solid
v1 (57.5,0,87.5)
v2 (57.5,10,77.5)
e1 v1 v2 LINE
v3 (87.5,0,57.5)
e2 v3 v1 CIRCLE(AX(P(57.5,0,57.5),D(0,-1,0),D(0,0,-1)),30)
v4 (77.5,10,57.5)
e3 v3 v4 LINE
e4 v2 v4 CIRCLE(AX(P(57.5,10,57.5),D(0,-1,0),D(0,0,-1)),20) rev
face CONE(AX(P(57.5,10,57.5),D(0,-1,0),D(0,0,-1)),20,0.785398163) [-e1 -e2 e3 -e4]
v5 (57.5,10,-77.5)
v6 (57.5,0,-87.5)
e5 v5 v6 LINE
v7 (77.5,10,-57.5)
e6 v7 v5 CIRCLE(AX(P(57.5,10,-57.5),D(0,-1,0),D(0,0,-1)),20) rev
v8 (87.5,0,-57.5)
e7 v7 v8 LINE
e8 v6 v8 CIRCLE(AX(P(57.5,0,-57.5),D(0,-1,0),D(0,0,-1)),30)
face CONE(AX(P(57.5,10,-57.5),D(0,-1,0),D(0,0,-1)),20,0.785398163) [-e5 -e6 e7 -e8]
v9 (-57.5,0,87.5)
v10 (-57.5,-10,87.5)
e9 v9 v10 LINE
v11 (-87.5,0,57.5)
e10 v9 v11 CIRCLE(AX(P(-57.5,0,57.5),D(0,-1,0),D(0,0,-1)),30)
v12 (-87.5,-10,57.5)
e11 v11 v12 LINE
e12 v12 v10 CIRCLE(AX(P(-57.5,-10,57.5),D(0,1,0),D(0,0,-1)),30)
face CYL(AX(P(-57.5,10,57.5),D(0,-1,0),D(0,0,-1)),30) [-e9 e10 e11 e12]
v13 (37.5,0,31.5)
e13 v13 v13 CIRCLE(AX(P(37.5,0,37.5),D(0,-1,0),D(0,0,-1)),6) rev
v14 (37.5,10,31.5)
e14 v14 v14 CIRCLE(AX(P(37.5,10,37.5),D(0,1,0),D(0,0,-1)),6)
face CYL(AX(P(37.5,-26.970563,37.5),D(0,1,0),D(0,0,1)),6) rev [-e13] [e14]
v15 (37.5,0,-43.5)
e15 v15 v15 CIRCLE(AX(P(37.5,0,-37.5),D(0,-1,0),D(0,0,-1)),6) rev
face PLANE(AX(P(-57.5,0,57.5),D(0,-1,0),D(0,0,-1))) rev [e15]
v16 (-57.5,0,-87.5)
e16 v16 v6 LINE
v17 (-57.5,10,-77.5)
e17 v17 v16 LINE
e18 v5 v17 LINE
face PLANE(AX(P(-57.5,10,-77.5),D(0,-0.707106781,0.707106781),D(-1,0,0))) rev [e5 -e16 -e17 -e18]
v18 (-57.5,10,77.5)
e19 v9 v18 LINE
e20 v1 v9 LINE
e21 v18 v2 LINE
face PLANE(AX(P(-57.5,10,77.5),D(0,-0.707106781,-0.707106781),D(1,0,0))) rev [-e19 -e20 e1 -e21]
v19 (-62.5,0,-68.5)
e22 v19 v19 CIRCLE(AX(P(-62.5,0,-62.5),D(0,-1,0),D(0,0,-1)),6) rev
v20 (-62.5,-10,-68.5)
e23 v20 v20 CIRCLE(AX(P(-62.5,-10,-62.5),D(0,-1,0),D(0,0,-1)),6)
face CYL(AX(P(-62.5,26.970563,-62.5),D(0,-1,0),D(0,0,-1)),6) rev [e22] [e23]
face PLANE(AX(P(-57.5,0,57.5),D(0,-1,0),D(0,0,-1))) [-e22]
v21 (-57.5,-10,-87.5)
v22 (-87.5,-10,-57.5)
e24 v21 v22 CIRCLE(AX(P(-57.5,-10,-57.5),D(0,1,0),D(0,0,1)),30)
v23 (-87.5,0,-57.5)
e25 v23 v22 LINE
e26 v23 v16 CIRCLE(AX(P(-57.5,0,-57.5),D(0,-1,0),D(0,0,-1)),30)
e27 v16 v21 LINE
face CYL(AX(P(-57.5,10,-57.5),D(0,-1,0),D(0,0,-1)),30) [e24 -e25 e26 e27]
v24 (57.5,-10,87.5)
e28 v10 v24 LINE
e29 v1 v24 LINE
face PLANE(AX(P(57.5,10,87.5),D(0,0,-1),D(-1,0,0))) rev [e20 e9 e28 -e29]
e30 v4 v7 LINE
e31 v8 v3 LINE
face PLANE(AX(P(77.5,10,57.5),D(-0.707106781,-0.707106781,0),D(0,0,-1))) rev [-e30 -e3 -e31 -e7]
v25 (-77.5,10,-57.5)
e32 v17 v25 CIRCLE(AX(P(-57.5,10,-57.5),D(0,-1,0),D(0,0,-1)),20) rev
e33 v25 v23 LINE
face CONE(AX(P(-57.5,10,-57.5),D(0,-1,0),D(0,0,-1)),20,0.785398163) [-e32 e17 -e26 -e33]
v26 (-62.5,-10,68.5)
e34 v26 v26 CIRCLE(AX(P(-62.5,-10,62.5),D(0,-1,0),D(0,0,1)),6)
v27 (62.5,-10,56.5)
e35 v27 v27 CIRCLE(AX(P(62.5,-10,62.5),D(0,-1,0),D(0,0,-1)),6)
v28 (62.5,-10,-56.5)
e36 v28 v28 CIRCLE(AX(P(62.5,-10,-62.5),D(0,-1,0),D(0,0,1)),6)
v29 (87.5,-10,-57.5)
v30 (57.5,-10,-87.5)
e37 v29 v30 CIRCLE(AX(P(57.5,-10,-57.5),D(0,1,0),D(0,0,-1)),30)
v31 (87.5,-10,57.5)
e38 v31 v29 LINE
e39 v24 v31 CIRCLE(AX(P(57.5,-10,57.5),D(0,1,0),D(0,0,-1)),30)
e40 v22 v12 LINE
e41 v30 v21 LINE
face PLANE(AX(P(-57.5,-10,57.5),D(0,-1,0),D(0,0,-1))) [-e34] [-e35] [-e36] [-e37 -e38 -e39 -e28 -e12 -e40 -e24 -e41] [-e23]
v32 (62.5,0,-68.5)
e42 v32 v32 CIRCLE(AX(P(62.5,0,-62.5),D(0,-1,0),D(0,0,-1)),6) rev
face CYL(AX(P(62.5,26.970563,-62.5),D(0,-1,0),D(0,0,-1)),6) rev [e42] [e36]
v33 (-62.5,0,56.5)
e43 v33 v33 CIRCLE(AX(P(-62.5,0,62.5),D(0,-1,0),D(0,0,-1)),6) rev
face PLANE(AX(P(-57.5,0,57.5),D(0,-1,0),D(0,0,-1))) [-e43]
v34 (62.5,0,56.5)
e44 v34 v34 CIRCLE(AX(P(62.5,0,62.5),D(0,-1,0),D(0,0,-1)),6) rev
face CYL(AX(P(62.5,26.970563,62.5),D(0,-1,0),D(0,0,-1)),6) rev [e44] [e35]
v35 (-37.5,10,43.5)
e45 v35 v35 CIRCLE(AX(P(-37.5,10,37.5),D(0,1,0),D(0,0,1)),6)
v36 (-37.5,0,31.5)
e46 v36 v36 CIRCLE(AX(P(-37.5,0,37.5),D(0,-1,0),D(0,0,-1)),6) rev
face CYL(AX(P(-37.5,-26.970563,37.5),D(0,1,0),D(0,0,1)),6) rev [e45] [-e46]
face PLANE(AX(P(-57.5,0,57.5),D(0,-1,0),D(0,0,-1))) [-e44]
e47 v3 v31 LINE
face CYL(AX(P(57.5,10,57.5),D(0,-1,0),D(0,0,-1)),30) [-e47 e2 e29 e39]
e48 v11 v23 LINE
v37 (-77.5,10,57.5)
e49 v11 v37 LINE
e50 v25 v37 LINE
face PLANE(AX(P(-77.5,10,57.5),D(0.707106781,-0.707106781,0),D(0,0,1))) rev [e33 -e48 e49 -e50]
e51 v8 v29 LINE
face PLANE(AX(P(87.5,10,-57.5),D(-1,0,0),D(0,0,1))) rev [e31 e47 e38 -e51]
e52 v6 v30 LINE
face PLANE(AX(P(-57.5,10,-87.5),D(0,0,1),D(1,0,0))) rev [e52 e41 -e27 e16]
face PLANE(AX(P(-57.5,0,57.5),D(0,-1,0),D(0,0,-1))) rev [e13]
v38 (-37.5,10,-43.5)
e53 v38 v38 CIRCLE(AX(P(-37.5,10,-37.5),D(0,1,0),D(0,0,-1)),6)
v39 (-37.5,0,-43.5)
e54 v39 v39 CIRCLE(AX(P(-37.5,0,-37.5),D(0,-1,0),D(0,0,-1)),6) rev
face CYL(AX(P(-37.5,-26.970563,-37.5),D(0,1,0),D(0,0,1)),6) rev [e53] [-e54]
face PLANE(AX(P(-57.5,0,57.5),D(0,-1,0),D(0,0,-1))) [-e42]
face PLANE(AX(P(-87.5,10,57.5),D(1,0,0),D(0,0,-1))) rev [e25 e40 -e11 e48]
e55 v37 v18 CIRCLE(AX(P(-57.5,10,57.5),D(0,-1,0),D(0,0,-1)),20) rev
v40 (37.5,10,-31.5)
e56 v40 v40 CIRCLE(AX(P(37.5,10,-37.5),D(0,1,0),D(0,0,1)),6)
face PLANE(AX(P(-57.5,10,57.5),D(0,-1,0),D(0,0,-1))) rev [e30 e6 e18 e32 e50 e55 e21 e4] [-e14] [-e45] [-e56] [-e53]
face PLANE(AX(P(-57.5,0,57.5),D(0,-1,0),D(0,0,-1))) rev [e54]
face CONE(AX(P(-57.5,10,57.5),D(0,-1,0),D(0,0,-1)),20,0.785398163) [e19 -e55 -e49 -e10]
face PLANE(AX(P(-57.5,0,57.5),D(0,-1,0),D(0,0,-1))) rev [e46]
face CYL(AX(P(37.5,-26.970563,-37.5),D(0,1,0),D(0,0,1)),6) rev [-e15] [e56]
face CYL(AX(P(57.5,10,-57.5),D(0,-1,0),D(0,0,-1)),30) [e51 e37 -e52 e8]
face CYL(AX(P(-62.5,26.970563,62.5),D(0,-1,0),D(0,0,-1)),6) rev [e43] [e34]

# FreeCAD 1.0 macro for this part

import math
import FreeCAD as App
import Part
import Sketcher
from FreeCAD import Vector


def edges_at(feature, points):
    """Names of the edges that pass closest to the given points."""
    edges = feature.Shape.Edges
    near = lambda p: min(range(len(edges)), key=lambda i: edges[i].distToShape(Part.Vertex(*p))[0])
    return sorted({f"Edge{near(p) + 1}" for p in points})

doc = App.newDocument("Part")
body = doc.addObject("PartDesign::Body", "Body")

# Sketch on XZ plane
sketch1 = doc.addObject("Sketcher::SketchObject", "Sketch")
body.addObject(sketch1)
sketch1.AttachmentSupport = (doc.XZ_Plane, [""])
sketch1.MapMode = "FlatFace"
sketch1.addGeometry(Part.LineSegment(Vector(58, -88, 0), Vector(-58, -88, 0)), False)
sketch1.addGeometry(Part.ArcOfCircle(Part.Circle(Vector(-58, -58, 0), Vector(0, 0, 1), 30), math.radians(180), math.radians(270)), False)
sketch1.addGeometry(Part.LineSegment(Vector(-88, -58, 0), Vector(-88, 58, 0)), False)
sketch1.addGeometry(Part.ArcOfCircle(Part.Circle(Vector(-58, 58, 0), Vector(0, 0, 1), 30), math.radians(90), math.radians(180)), False)
sketch1.addGeometry(Part.LineSegment(Vector(-58, 88, 0), Vector(58, 88, 0)), False)
sketch1.addGeometry(Part.ArcOfCircle(Part.Circle(Vector(58, 58, 0), Vector(0, 0, 1), 30), math.radians(0), math.radians(90)), False)
sketch1.addGeometry(Part.LineSegment(Vector(88, 58, 0), Vector(88, -58, 0)), False)
sketch1.addGeometry(Part.ArcOfCircle(Part.Circle(Vector(58, -58, 0), Vector(0, 0, 1), 30), math.radians(-90), math.radians(0)), False)
sketch1.addConstraint(Sketcher.Constraint("Tangent", 0, 2, 1, 2))
sketch1.addConstraint(Sketcher.Constraint("Tangent", 1, 1, 2, 1))
sketch1.addConstraint(Sketcher.Constraint("Tangent", 2, 2, 3, 2))
sketch1.addConstraint(Sketcher.Constraint("Tangent", 3, 1, 4, 1))
sketch1.addConstraint(Sketcher.Constraint("Tangent", 4, 2, 5, 2))
sketch1.addConstraint(Sketcher.Constraint("Tangent", 5, 1, 6, 1))
sketch1.addConstraint(Sketcher.Constraint("Tangent", 6, 2, 7, 2))
sketch1.addConstraint(Sketcher.Constraint("Tangent", 7, 1, 0, 1))
sketch1.addConstraint(Sketcher.Constraint("Horizontal", 0))
sketch1.addConstraint(Sketcher.Constraint("Vertical", 2))
sketch1.addConstraint(Sketcher.Constraint("Horizontal", 4))
sketch1.addConstraint(Sketcher.Constraint("Vertical", 6))
sketch1.addConstraint(Sketcher.Constraint("Equal", 1, 3))
sketch1.addConstraint(Sketcher.Constraint("Equal", 3, 5))
sketch1.addConstraint(Sketcher.Constraint("Equal", 5, 7))
sketch1.addConstraint(Sketcher.Constraint("Symmetric", 1, 3, 5, 3, -1, 1))
sketch1.addConstraint(Sketcher.Constraint("Equal", 4, 2))
sketch1.addConstraint(Sketcher.Constraint("Radius", 1, 30.0))
sketch1.addConstraint(Sketcher.Constraint("DistanceX", 0, 2, 0, 1, 115.0))
pad1 = doc.addObject("PartDesign::Pad", "Pad")
body.addObject(pad1)
pad1.Profile = sketch1
pad1.Length = 20
pad1.Midplane = True
doc.recompute()

chamfer = doc.addObject("PartDesign::Chamfer", "Chamfer")
body.addObject(chamfer)
chamfer.Base = (pad1, edges_at(pad1, [
    (78.713, 10, 78.713),
    (87.5, 10, 0),
    (78.713, 10, -78.713),
    (0, 10, -87.5),
    (-78.713, 10, -78.713),
    (-87.5, 10, 0),
    (-78.713, 10, 78.713),
    (0, 10, 87.5),
]))
chamfer.Size = 10

# Sketch on XZ plane
sketch2 = doc.addObject("Sketcher::SketchObject", "Sketch001")
body.addObject(sketch2)
sketch2.AttachmentSupport = (doc.XZ_Plane, [""])
sketch2.MapMode = "FlatFace"
sketch2.AttachmentOffset = App.Placement(Vector(0, 0, -10), App.Rotation())
sketch2.addGeometry(Part.Circle(Vector(38, -38, 0), Vector(0, 0, 1), 6), False)
sketch2.addGeometry(Part.Circle(Vector(-38, -38, 0), Vector(0, 0, 1), 6), False)
sketch2.addGeometry(Part.Circle(Vector(38, 38, 0), Vector(0, 0, 1), 6), False)
sketch2.addGeometry(Part.Circle(Vector(-38, 38, 0), Vector(0, 0, 1), 6), False)
sketch2.addConstraint(Sketcher.Constraint("Equal", 0, 1))
sketch2.addConstraint(Sketcher.Constraint("Equal", 1, 2))
sketch2.addConstraint(Sketcher.Constraint("Equal", 2, 3))
sketch2.addConstraint(Sketcher.Constraint("Symmetric", 1, 3, 2, 3, -1, 1))
sketch2.addConstraint(Sketcher.Constraint("Symmetric", 0, 3, 3, 3, -1, 1))
sketch2.addConstraint(Sketcher.Constraint("Symmetric", 0, 3, 1, 3, -2))
sketch2.addConstraint(Sketcher.Constraint("Diameter", 0, 12.0))
sketch2.addConstraint(Sketcher.Constraint("DistanceX", 1, 3, 0, 3, 75.0))
sketch2.addConstraint(Sketcher.Constraint("DistanceY", 0, 3, 2, 3, 75.0))
pocket1 = doc.addObject("PartDesign::Pocket", "Pocket")
body.addObject(pocket1)
pocket1.Profile = sketch2
pocket1.Length = 10
pocket1.Reversed = True

# Sketch on XZ plane
sketch3 = doc.addObject("Sketcher::SketchObject", "Sketch002")
body.addObject(sketch3)
sketch3.AttachmentSupport = (doc.XZ_Plane, [""])
sketch3.MapMode = "FlatFace"
sketch3.AttachmentOffset = App.Placement(Vector(0, 0, 10), App.Rotation())
sketch3.addGeometry(Part.Circle(Vector(62, 62, 0), Vector(0, 0, 1), 6), False)
sketch3.addGeometry(Part.Circle(Vector(-62, 62, 0), Vector(0, 0, 1), 6), False)
sketch3.addGeometry(Part.Circle(Vector(62, -62, 0), Vector(0, 0, 1), 6), False)
sketch3.addGeometry(Part.Circle(Vector(-62, -62, 0), Vector(0, 0, 1), 6), False)
sketch3.addConstraint(Sketcher.Constraint("Equal", 0, 1))
sketch3.addConstraint(Sketcher.Constraint("Equal", 1, 2))
sketch3.addConstraint(Sketcher.Constraint("Equal", 2, 3))
sketch3.addConstraint(Sketcher.Constraint("Symmetric", 1, 3, 2, 3, -1, 1))
sketch3.addConstraint(Sketcher.Constraint("Symmetric", 0, 3, 3, 3, -1, 1))
sketch3.addConstraint(Sketcher.Constraint("Symmetric", 0, 3, 1, 3, -2))
sketch3.addConstraint(Sketcher.Constraint("Diameter", 0, 12.0))
sketch3.addConstraint(Sketcher.Constraint("DistanceX", 1, 3, 0, 3, 125.0))
sketch3.addConstraint(Sketcher.Constraint("DistanceY", 2, 3, 0, 3, 125.0))
pocket2 = doc.addObject("PartDesign::Pocket", "Pocket001")
body.addObject(pocket2)
pocket2.Profile = sketch3
pocket2.Length = 10

doc.recompute()
